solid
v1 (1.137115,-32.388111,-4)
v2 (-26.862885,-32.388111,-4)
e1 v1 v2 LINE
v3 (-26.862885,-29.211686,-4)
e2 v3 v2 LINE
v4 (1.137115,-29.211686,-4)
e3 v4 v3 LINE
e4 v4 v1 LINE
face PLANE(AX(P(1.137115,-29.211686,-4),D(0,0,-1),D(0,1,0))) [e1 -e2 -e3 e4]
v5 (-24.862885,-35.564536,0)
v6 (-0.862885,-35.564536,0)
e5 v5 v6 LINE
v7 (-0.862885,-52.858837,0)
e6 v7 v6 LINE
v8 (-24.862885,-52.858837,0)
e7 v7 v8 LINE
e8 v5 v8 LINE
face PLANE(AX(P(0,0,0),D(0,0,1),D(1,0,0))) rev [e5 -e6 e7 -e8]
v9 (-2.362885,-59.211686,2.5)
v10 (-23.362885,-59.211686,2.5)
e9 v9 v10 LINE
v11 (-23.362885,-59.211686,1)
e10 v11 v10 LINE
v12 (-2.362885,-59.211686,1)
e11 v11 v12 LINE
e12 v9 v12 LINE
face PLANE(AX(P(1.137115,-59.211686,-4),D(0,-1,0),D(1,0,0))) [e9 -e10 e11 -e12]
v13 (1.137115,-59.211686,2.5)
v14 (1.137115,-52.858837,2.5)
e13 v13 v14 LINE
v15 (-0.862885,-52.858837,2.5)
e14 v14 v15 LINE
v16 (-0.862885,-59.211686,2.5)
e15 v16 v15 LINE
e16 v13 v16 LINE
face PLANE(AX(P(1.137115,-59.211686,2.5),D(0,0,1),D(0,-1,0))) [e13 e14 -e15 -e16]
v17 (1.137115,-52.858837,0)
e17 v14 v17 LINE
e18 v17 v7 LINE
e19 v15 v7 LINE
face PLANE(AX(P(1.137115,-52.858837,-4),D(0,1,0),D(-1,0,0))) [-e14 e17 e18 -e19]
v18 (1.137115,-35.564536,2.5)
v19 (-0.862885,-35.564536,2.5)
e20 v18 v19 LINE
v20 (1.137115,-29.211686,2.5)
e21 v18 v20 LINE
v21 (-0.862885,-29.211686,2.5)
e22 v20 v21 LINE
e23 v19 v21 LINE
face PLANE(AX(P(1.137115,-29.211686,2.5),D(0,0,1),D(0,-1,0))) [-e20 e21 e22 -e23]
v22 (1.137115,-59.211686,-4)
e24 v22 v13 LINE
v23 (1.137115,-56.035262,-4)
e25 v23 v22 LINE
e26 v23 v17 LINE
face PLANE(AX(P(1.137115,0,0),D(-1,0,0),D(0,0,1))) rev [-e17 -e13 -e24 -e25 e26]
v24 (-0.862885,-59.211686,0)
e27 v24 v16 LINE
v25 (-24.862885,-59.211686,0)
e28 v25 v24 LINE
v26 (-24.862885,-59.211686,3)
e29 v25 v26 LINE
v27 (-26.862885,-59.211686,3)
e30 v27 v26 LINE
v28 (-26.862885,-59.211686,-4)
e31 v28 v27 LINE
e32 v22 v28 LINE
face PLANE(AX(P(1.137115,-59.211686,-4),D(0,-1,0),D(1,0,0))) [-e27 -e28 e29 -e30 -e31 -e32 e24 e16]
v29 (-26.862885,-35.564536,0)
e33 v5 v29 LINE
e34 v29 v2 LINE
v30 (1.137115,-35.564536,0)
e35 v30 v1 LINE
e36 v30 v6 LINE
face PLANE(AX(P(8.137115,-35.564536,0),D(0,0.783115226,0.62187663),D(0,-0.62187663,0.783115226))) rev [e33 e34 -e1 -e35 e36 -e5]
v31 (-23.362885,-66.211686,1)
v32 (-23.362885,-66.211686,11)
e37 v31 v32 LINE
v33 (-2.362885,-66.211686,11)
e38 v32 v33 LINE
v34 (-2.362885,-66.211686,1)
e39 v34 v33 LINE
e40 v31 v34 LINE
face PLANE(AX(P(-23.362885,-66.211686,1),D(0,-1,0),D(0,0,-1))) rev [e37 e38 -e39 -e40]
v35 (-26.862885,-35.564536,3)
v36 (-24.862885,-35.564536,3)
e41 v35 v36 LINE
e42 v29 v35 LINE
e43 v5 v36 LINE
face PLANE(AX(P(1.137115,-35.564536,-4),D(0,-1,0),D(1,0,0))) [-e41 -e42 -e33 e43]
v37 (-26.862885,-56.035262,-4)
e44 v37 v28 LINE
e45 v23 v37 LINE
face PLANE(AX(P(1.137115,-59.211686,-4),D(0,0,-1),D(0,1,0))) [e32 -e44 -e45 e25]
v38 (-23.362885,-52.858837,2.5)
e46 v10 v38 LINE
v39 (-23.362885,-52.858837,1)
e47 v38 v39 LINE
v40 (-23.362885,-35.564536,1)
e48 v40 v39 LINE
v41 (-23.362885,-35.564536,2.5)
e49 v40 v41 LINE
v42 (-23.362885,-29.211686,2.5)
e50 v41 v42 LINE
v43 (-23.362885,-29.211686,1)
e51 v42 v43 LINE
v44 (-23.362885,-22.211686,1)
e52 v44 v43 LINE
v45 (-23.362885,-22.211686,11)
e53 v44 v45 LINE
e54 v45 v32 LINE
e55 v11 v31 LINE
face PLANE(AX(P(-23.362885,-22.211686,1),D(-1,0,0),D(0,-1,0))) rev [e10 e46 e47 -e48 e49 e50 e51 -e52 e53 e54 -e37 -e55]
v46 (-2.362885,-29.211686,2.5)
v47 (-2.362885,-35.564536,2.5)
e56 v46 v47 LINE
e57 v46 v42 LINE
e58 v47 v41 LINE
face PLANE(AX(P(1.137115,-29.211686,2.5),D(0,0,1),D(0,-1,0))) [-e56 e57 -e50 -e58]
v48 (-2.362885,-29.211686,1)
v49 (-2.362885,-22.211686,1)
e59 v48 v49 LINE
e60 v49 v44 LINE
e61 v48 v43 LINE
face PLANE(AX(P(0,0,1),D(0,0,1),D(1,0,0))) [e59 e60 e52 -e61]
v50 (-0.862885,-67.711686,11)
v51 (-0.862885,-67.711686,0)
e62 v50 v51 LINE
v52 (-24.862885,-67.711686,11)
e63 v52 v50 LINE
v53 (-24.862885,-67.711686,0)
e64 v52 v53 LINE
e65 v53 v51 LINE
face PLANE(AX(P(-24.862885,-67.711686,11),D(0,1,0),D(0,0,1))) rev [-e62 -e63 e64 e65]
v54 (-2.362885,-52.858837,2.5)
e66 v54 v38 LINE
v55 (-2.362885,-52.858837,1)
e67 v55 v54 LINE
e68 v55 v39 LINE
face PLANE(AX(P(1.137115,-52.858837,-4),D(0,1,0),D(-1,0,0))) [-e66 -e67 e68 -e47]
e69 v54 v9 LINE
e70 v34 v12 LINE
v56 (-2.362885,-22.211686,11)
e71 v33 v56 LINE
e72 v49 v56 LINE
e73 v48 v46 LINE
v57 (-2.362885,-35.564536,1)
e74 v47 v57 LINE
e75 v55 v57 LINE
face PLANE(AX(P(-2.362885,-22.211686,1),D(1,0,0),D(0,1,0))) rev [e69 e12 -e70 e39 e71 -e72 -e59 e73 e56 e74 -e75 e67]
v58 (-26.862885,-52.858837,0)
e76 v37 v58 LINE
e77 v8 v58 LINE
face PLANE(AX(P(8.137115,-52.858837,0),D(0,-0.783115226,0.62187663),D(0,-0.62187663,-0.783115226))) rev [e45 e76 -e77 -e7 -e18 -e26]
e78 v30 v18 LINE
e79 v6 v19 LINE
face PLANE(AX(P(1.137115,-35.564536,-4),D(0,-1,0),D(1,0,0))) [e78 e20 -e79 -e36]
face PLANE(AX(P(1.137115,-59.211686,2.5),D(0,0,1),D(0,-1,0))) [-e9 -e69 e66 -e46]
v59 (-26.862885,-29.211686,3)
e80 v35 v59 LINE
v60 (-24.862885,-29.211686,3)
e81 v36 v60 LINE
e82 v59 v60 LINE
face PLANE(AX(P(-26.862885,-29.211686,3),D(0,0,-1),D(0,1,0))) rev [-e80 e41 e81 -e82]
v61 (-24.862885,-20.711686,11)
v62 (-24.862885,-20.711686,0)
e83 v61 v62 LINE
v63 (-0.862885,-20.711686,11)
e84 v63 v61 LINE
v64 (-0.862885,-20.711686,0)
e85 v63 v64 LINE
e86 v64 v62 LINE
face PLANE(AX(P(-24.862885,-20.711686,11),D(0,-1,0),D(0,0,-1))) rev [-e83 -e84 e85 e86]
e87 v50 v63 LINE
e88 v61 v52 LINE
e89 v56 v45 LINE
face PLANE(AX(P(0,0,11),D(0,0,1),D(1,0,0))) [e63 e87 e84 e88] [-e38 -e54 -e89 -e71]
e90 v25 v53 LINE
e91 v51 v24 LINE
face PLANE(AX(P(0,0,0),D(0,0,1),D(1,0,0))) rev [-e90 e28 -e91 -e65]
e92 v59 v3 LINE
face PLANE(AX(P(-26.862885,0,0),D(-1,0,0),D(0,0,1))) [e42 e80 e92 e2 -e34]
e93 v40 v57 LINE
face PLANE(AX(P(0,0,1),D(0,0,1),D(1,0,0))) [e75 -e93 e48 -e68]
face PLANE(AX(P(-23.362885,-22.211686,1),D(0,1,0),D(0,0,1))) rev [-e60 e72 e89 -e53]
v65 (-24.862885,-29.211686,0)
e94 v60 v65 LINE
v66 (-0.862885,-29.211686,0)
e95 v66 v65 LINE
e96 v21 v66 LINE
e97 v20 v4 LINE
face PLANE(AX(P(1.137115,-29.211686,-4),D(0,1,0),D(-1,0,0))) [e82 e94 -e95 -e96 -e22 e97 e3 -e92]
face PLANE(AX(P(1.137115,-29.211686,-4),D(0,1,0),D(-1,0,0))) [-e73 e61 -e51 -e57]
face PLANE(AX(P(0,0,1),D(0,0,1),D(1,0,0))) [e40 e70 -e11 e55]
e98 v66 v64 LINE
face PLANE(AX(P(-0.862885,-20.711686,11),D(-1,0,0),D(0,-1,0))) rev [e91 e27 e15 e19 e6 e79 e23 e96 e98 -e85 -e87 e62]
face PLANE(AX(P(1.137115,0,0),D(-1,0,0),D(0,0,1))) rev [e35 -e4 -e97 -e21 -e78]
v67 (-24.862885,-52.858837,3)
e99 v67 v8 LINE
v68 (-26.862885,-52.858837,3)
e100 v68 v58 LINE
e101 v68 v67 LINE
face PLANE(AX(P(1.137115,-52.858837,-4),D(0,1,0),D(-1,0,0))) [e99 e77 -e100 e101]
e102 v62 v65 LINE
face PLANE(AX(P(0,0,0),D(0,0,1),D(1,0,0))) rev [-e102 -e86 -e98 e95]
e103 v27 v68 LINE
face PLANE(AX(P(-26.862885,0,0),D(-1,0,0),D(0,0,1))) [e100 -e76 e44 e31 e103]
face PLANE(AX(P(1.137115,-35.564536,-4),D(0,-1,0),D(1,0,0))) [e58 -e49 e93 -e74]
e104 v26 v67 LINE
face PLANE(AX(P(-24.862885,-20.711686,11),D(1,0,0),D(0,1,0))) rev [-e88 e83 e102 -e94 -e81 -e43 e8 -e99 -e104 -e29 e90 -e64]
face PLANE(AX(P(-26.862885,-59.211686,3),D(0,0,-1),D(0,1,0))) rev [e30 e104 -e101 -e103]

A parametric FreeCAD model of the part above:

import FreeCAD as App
import Part
import Sketcher
from FreeCAD import Vector
Q = App.Units.Quantity

doc = App.newDocument("Part")
body = doc.addObject("PartDesign::Body", "Body")

# Sketch on XY plane
sketch1 = body.newObject("Sketcher::SketchObject", "Sketch")
sketch1.AttachmentSupport = (doc.getObject("XY_Plane"), [""])
sketch1.MapMode = "FlatFace"
sketch1.addGeometry(Part.LineSegment(Vector(-25, -21, 0), Vector(-25, -68, 0)), False)
sketch1.addGeometry(Part.LineSegment(Vector(-25, -68, 0), Vector(-1, -68, 0)), False)
sketch1.addGeometry(Part.LineSegment(Vector(-1, -68, 0), Vector(-1, -21, 0)), False)
sketch1.addGeometry(Part.LineSegment(Vector(-1, -21, 0), Vector(-25, -21, 0)), False)
sketch1.addConstraint(Sketcher.Constraint("Coincident", 0, 2, 1, 1))
sketch1.addConstraint(Sketcher.Constraint("Coincident", 1, 2, 2, 1))
sketch1.addConstraint(Sketcher.Constraint("Coincident", 2, 2, 3, 1))
sketch1.addConstraint(Sketcher.Constraint("Coincident", 3, 2, 0, 1))
sketch1.addConstraint(Sketcher.Constraint("Vertical", 0))
sketch1.addConstraint(Sketcher.Constraint("Horizontal", 1))
sketch1.addConstraint(Sketcher.Constraint("Vertical", 2))
sketch1.addConstraint(Sketcher.Constraint("Horizontal", 3))
sketch1.addConstraint(Sketcher.Constraint("DistanceX", 1, 1, 1, 2, Q("24 mm")))
sketch1.addConstraint(Sketcher.Constraint("DistanceY", 0, 2, 0, 1, Q("47 mm")))
sketch1.addConstraint(Sketcher.Constraint("DistanceX", 0, 2, -1, 1, Q("24.862885 mm")))
sketch1.addConstraint(Sketcher.Constraint("DistanceY", 0, 2, -1, 1, Q("67.711686 mm")))
pad1 = body.newObject("PartDesign::Pad", "Pad")
pad1.Profile = sketch1
pad1.Length = 11

# Sketch on XY plane
sketch2 = body.newObject("Sketcher::SketchObject", "Sketch001")
sketch2.AttachmentSupport = (doc.getObject("XY_Plane"), [""])
sketch2.MapMode = "FlatFace"
sketch2.AttachmentOffset = App.Placement(Vector(0, 0, 11), App.Rotation())
sketch2.addGeometry(Part.LineSegment(Vector(-23, -22, 0), Vector(-23, -66, 0)), False)
sketch2.addGeometry(Part.LineSegment(Vector(-23, -66, 0), Vector(-2, -66, 0)), False)
sketch2.addGeometry(Part.LineSegment(Vector(-2, -66, 0), Vector(-2, -22, 0)), False)
sketch2.addGeometry(Part.LineSegment(Vector(-2, -22, 0), Vector(-23, -22, 0)), False)
sketch2.addConstraint(Sketcher.Constraint("Coincident", 0, 2, 1, 1))
sketch2.addConstraint(Sketcher.Constraint("Coincident", 1, 2, 2, 1))
sketch2.addConstraint(Sketcher.Constraint("Coincident", 2, 2, 3, 1))
sketch2.addConstraint(Sketcher.Constraint("Coincident", 3, 2, 0, 1))
sketch2.addConstraint(Sketcher.Constraint("Vertical", 0))
sketch2.addConstraint(Sketcher.Constraint("Horizontal", 1))
sketch2.addConstraint(Sketcher.Constraint("Vertical", 2))
sketch2.addConstraint(Sketcher.Constraint("Horizontal", 3))
sketch2.addConstraint(Sketcher.Constraint("DistanceX", 1, 1, 1, 2, Q("21 mm")))
sketch2.addConstraint(Sketcher.Constraint("DistanceY", 0, 2, 0, 1, Q("44 mm")))
sketch2.addConstraint(Sketcher.Constraint("DistanceX", 0, 2, -1, 1, Q("23.362885 mm")))
sketch2.addConstraint(Sketcher.Constraint("DistanceY", 0, 2, -1, 1, Q("66.211686 mm")))
pocket1 = body.newObject("PartDesign::Pocket", "Pocket")
pocket1.Profile = sketch2
pocket1.Length = 10

# Sketch on YZ plane
sketch3 = body.newObject("Sketcher::SketchObject", "Sketch002")
sketch3.AttachmentSupport = (doc.getObject("YZ_Plane"), [""])
sketch3.MapMode = "FlatFace"
sketch3.AttachmentOffset = App.Placement(Vector(0, 0, -24.862885), App.Rotation())
sketch3.addGeometry(Part.LineSegment(Vector(-29, -4, 0), Vector(-36, -4, 0)), False)
sketch3.addGeometry(Part.LineSegment(Vector(-36, -4, 0), Vector(-36, 2, 0)), False)
sketch3.addGeometry(Part.LineSegment(Vector(-36, 2, 0), Vector(-29, 2, 0)), False)
sketch3.addGeometry(Part.LineSegment(Vector(-29, 2, 0), Vector(-29, -4, 0)), False)
sketch3.addGeometry(Part.LineSegment(Vector(-53, -4, 0), Vector(-59, -4, 0)), False)
sketch3.addGeometry(Part.LineSegment(Vector(-59, -4, 0), Vector(-59, 2, 0)), False)
sketch3.addGeometry(Part.LineSegment(Vector(-59, 2, 0), Vector(-53, 2, 0)), False)
sketch3.addGeometry(Part.LineSegment(Vector(-53, 2, 0), Vector(-53, -4, 0)), False)
sketch3.addConstraint(Sketcher.Constraint("Coincident", 0, 2, 1, 1))
sketch3.addConstraint(Sketcher.Constraint("Coincident", 1, 2, 2, 1))
sketch3.addConstraint(Sketcher.Constraint("Coincident", 2, 2, 3, 1))
sketch3.addConstraint(Sketcher.Constraint("Coincident", 3, 2, 0, 1))
sketch3.addConstraint(Sketcher.Constraint("Coincident", 4, 2, 5, 1))
sketch3.addConstraint(Sketcher.Constraint("Coincident", 5, 2, 6, 1))
sketch3.addConstraint(Sketcher.Constraint("Coincident", 6, 2, 7, 1))
sketch3.addConstraint(Sketcher.Constraint("Coincident", 7, 2, 4, 1))
sketch3.addConstraint(Sketcher.Constraint("Horizontal", 0))
sketch3.addConstraint(Sketcher.Constraint("Vertical", 1))
sketch3.addConstraint(Sketcher.Constraint("Horizontal", 2))
sketch3.addConstraint(Sketcher.Constraint("Vertical", 3))
sketch3.addConstraint(Sketcher.Constraint("Horizontal", 4))
sketch3.addConstraint(Sketcher.Constraint("Vertical", 5))
sketch3.addConstraint(Sketcher.Constraint("Horizontal", 6))
sketch3.addConstraint(Sketcher.Constraint("Vertical", 7))
sketch3.addConstraint(Sketcher.Constraint("Horizontal", 3, 2, 4, 2))
sketch3.addConstraint(Sketcher.Constraint("Horizontal", 2, 2, 5, 2))
sketch3.addConstraint(Sketcher.Constraint("Equal", 2, 4))
sketch3.addConstraint(Sketcher.Constraint("DistanceY", 1, 1, 1, 2, Q("6.5 mm")))
sketch3.addConstraint(Sketcher.Constraint("DistanceY", 0, 2, -1, 1, Q("4 mm")))
sketch3.addConstraint(Sketcher.Constraint("DistanceX", 4, 2, 3, 2, Q("30 mm")))
sketch3.addConstraint(Sketcher.Constraint("DistanceX", 0, 2, 0, 1, Q("6.352849 mm")))
sketch3.addConstraint(Sketcher.Constraint("DistanceX", 0, 2, -1, 1, Q("35.564536 mm")))
pad2 = body.newObject("PartDesign::Pad", "Pad001")
pad2.Profile = sketch3
pad2.Length = 26

# Sketch on YZ plane
sketch4 = body.newObject("Sketcher::SketchObject", "Sketch003")
sketch4.AttachmentSupport = (doc.getObject("YZ_Plane"), [""])
sketch4.MapMode = "FlatFace"
sketch4.AttachmentOffset = App.Placement(Vector(0, 0, -24.862885), App.Rotation())
sketch4.addGeometry(Part.LineSegment(Vector(-29, -4, 0), Vector(-36, -4, 0)), False)
sketch4.addGeometry(Part.LineSegment(Vector(-36, -4, 0), Vector(-36, 3, 0)), False)
sketch4.addGeometry(Part.LineSegment(Vector(-36, 3, 0), Vector(-29, 3, 0)), False)
sketch4.addGeometry(Part.LineSegment(Vector(-29, 3, 0), Vector(-29, -4, 0)), False)
sketch4.addGeometry(Part.LineSegment(Vector(-53, -4, 0), Vector(-59, -4, 0)), False)
sketch4.addGeometry(Part.LineSegment(Vector(-59, -4, 0), Vector(-59, 3, 0)), False)
sketch4.addGeometry(Part.LineSegment(Vector(-59, 3, 0), Vector(-53, 3, 0)), False)
sketch4.addGeometry(Part.LineSegment(Vector(-53, 3, 0), Vector(-53, -4, 0)), False)
sketch4.addConstraint(Sketcher.Constraint("Coincident", 0, 2, 1, 1))
sketch4.addConstraint(Sketcher.Constraint("Coincident", 1, 2, 2, 1))
sketch4.addConstraint(Sketcher.Constraint("Coincident", 2, 2, 3, 1))
sketch4.addConstraint(Sketcher.Constraint("Coincident", 3, 2, 0, 1))
sketch4.addConstraint(Sketcher.Constraint("Coincident", 4, 2, 5, 1))
sketch4.addConstraint(Sketcher.Constraint("Coincident", 5, 2, 6, 1))
sketch4.addConstraint(Sketcher.Constraint("Coincident", 6, 2, 7, 1))
sketch4.addConstraint(Sketcher.Constraint("Coincident", 7, 2, 4, 1))
sketch4.addConstraint(Sketcher.Constraint("Horizontal", 0))
sketch4.addConstraint(Sketcher.Constraint("Vertical", 1))
sketch4.addConstraint(Sketcher.Constraint("Horizontal", 2))
sketch4.addConstraint(Sketcher.Constraint("Vertical", 3))
sketch4.addConstraint(Sketcher.Constraint("Horizontal", 4))
sketch4.addConstraint(Sketcher.Constraint("Vertical", 5))
sketch4.addConstraint(Sketcher.Constraint("Horizontal", 6))
sketch4.addConstraint(Sketcher.Constraint("Vertical", 7))
sketch4.addConstraint(Sketcher.Constraint("Horizontal", 3, 2, 4, 2))
sketch4.addConstraint(Sketcher.Constraint("Horizontal", 2, 2, 5, 2))
sketch4.addConstraint(Sketcher.Constraint("Equal", 2, 4))
sketch4.addConstraint(Sketcher.Constraint("DistanceY", 1, 1, 1, 2, Q("7 mm")))
sketch4.addConstraint(Sketcher.Constraint("DistanceY", 0, 2, -1, 1, Q("4 mm")))
sketch4.addConstraint(Sketcher.Constraint("DistanceX", 4, 2, 3, 2, Q("30 mm")))
sketch4.addConstraint(Sketcher.Constraint("DistanceX", 0, 2, 0, 1, Q("6.352849 mm")))
sketch4.addConstraint(Sketcher.Constraint("DistanceX", 0, 2, -1, 1, Q("35.564536 mm")))
pad3 = body.newObject("PartDesign::Pad", "Pad002")
pad3.Profile = sketch4
pad3.Length = 2
pad3.Reversed = True

# Sketch on YZ plane
sketch5 = body.newObject("Sketcher::SketchObject", "Sketch004")
sketch5.AttachmentSupport = (doc.getObject("YZ_Plane"), [""])
sketch5.MapMode = "FlatFace"
sketch5.AttachmentOffset = App.Placement(Vector(0, 0, -26.862885), App.Rotation())
sketch5.addGeometry(Part.LineSegment(Vector(-35.6, 0, 0), Vector(-32.4, -4, 0)), False)
sketch5.addGeometry(Part.LineSegment(Vector(-32.4, -4, 0), Vector(-35.6, -4, 0)), False)
sketch5.addGeometry(Part.LineSegment(Vector(-35.6, -4, 0), Vector(-35.6, 0, 0)), False)
sketch5.addGeometry(Part.LineSegment(Vector(-56, -4, 0), Vector(-52.9, 0, 0)), False)
sketch5.addGeometry(Part.LineSegment(Vector(-52.9, 0, 0), Vector(-52.9, -4, 0)), False)
sketch5.addGeometry(Part.LineSegment(Vector(-52.9, -4, 0), Vector(-56, -4, 0)), False)
sketch5.addConstraint(Sketcher.Constraint("Coincident", 0, 2, 1, 1))
sketch5.addConstraint(Sketcher.Constraint("Coincident", 1, 2, 2, 1))
sketch5.addConstraint(Sketcher.Constraint("Coincident", 2, 2, 0, 1))
sketch5.addConstraint(Sketcher.Constraint("Coincident", 3, 2, 4, 1))
sketch5.addConstraint(Sketcher.Constraint("Coincident", 4, 2, 5, 1))
sketch5.addConstraint(Sketcher.Constraint("Coincident", 5, 2, 3, 1))
sketch5.addConstraint(Sketcher.Constraint("Horizontal", 1))
sketch5.addConstraint(Sketcher.Constraint("Vertical", 2))
sketch5.addConstraint(Sketcher.Constraint("Vertical", 4))
sketch5.addConstraint(Sketcher.Constraint("Horizontal", 5))
sketch5.addConstraint(Sketcher.Constraint("PointOnObject", 2, 2, -1))
sketch5.addConstraint(Sketcher.Constraint("PointOnObject", 3, 2, -1))
sketch5.addConstraint(Sketcher.Constraint("Horizontal", 1, 2, 4, 2))
sketch5.addConstraint(Sketcher.Constraint("Equal", 1, 5))
sketch5.addConstraint(Sketcher.Constraint("DistanceY", 2, 1, 2, 2, Q("4 mm")))
sketch5.addConstraint(Sketcher.Constraint("DistanceX", 3, 2, 2, 2, Q("17.294301 mm")))
sketch5.addConstraint(Sketcher.Constraint("DistanceX", 1, 2, 1, 1, Q("3.176425 mm")))
sketch5.addConstraint(Sketcher.Constraint("DistanceX", 0, 2, -1, 1, Q("32.388111 mm")))
pocket2 = body.newObject("PartDesign::Pocket", "Pocket001")
pocket2.Profile = sketch5
pocket2.Length = 35
pocket2.Reversed = True

doc.recompute()
